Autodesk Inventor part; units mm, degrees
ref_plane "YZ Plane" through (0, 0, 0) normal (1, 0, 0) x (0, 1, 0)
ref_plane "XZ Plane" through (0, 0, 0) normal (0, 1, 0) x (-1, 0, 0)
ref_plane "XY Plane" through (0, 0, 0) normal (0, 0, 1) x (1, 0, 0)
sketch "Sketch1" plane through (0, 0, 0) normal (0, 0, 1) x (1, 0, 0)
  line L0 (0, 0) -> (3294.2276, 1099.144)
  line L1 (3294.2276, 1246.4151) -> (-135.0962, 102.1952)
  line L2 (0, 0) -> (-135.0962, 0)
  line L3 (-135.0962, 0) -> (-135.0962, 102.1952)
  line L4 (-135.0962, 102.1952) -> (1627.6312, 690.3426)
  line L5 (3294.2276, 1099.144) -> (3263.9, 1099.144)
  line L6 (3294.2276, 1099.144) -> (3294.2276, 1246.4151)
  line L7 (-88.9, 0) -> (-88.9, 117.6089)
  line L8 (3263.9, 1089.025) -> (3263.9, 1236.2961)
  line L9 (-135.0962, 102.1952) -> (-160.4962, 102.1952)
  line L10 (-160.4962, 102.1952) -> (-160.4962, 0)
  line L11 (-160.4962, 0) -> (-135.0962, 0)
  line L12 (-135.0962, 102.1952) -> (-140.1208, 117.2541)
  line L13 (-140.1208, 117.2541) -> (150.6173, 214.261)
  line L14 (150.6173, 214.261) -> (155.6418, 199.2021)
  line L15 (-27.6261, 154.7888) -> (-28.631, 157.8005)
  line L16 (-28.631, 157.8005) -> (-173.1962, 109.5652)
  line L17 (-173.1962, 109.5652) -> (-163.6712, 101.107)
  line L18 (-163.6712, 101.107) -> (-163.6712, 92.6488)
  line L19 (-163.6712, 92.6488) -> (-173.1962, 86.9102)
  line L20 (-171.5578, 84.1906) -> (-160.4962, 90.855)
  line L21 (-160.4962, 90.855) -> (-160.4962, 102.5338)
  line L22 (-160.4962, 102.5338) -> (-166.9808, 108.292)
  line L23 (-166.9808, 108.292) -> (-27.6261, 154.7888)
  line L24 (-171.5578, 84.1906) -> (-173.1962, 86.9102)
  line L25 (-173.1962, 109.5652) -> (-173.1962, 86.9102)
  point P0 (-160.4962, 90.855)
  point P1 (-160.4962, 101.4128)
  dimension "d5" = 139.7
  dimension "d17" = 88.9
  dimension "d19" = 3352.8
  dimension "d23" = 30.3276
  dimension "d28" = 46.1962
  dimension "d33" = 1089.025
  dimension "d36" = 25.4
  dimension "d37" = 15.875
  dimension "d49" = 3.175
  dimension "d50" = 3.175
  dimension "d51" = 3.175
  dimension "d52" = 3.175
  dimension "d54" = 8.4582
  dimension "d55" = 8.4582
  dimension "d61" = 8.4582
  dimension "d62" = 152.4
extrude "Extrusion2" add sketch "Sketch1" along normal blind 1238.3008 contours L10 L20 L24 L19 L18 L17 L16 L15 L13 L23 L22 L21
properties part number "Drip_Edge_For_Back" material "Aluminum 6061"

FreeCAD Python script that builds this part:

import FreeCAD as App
import Part
import Sketcher
Q = App.Units.Quantity


def add_polygon(sketch, points):
    """Adds a closed chain of lines whose ends are joined by coincident constraints."""
    first, n = sketch.GeometryCount, len(points)
    for a, b in zip(points, points[1:] + points[:1]):
        sketch.addGeometry(Part.LineSegment(App.Vector(*a, 0), App.Vector(*b, 0)), False)
    for i in range(n):
        sketch.addConstraint(Sketcher.Constraint("Coincident", first + i, 2, first + (i + 1) % n, 1))

doc = App.newDocument("Part")
body = doc.addObject("PartDesign::Body", "Body")

sketch1 = doc.addObject("Sketcher::SketchObject", "Sketch")
body.addObject(sketch1)
sketch1.AttachmentSupport = (doc.XY_Plane, [""])
sketch1.MapMode = "FlatFace"
add_polygon(sketch1, [(-160.5, 90.9), (-160.5, 102.5), (-167, 108.3), (-140.1, 117.3), (-27.6, 154.8), (-28.6, 157.8), (-173.2, 109.6), (-163.7, 101.1), (-163.7, 92.6), (-173.2, 86.9), (-171.6, 84.2)])
sketch1.addConstraint([
    Sketcher.Constraint("Vertical", 0),
    Sketcher.Constraint("Vertical", 7),
    Sketcher.Constraint("Parallel", 2, 3),
    Sketcher.Constraint("Perpendicular", 3, 4),
    Sketcher.Constraint("Perpendicular", 4, 5),
    Sketcher.Constraint("Parallel", 1, 6),
    Sketcher.Constraint("Perpendicular", 8, 9),
    Sketcher.Constraint("Perpendicular", 9, 10),
    Sketcher.Constraint("Vertical", 5, 2, 8, 2),
    Sketcher.Constraint("Equal", 4, 9),
    Sketcher.Constraint("Distance", 5, Q("6 in")),
    Sketcher.Constraint("DistanceY", 7, 2, 7, 1, Q("0.333 in")),
    Sketcher.Constraint("Distance", 4, Q("0.125 in")),
    Sketcher.Constraint("DistanceX", 6, 2, 0, 2, Q("0.125 in")),
    Sketcher.Constraint("DistanceY", 6, 2, 5, 2, Q("0.333 in")),
    Sketcher.Constraint("DistanceY", 9, 2, 7, 2, Q("0.333 in")),
    Sketcher.Constraint("DistanceX", 5, 2, 0, 2, Q("0.5 in")),
    Sketcher.Constraint("DistanceY", 0, 1, 0, 2, Q("0.4598 in")),
    Sketcher.Constraint("Distance", 2, Q("1.1148 in")),
    Sketcher.Constraint("DistanceY", -1, 1, 2, 2, Q("4.6163 in")),
    Sketcher.Constraint("DistanceX", 4, 2, -1, 1, Q("1.1272 in")),
    Sketcher.Constraint("DistanceY", -1, 1, 5, 2, Q("4.3136 in")),
])
pad1 = doc.addObject("PartDesign::Pad", "Pad")
body.addObject(pad1)
pad1.Profile = sketch1
pad1.Length = Q("48.752 in")

doc.recompute()
